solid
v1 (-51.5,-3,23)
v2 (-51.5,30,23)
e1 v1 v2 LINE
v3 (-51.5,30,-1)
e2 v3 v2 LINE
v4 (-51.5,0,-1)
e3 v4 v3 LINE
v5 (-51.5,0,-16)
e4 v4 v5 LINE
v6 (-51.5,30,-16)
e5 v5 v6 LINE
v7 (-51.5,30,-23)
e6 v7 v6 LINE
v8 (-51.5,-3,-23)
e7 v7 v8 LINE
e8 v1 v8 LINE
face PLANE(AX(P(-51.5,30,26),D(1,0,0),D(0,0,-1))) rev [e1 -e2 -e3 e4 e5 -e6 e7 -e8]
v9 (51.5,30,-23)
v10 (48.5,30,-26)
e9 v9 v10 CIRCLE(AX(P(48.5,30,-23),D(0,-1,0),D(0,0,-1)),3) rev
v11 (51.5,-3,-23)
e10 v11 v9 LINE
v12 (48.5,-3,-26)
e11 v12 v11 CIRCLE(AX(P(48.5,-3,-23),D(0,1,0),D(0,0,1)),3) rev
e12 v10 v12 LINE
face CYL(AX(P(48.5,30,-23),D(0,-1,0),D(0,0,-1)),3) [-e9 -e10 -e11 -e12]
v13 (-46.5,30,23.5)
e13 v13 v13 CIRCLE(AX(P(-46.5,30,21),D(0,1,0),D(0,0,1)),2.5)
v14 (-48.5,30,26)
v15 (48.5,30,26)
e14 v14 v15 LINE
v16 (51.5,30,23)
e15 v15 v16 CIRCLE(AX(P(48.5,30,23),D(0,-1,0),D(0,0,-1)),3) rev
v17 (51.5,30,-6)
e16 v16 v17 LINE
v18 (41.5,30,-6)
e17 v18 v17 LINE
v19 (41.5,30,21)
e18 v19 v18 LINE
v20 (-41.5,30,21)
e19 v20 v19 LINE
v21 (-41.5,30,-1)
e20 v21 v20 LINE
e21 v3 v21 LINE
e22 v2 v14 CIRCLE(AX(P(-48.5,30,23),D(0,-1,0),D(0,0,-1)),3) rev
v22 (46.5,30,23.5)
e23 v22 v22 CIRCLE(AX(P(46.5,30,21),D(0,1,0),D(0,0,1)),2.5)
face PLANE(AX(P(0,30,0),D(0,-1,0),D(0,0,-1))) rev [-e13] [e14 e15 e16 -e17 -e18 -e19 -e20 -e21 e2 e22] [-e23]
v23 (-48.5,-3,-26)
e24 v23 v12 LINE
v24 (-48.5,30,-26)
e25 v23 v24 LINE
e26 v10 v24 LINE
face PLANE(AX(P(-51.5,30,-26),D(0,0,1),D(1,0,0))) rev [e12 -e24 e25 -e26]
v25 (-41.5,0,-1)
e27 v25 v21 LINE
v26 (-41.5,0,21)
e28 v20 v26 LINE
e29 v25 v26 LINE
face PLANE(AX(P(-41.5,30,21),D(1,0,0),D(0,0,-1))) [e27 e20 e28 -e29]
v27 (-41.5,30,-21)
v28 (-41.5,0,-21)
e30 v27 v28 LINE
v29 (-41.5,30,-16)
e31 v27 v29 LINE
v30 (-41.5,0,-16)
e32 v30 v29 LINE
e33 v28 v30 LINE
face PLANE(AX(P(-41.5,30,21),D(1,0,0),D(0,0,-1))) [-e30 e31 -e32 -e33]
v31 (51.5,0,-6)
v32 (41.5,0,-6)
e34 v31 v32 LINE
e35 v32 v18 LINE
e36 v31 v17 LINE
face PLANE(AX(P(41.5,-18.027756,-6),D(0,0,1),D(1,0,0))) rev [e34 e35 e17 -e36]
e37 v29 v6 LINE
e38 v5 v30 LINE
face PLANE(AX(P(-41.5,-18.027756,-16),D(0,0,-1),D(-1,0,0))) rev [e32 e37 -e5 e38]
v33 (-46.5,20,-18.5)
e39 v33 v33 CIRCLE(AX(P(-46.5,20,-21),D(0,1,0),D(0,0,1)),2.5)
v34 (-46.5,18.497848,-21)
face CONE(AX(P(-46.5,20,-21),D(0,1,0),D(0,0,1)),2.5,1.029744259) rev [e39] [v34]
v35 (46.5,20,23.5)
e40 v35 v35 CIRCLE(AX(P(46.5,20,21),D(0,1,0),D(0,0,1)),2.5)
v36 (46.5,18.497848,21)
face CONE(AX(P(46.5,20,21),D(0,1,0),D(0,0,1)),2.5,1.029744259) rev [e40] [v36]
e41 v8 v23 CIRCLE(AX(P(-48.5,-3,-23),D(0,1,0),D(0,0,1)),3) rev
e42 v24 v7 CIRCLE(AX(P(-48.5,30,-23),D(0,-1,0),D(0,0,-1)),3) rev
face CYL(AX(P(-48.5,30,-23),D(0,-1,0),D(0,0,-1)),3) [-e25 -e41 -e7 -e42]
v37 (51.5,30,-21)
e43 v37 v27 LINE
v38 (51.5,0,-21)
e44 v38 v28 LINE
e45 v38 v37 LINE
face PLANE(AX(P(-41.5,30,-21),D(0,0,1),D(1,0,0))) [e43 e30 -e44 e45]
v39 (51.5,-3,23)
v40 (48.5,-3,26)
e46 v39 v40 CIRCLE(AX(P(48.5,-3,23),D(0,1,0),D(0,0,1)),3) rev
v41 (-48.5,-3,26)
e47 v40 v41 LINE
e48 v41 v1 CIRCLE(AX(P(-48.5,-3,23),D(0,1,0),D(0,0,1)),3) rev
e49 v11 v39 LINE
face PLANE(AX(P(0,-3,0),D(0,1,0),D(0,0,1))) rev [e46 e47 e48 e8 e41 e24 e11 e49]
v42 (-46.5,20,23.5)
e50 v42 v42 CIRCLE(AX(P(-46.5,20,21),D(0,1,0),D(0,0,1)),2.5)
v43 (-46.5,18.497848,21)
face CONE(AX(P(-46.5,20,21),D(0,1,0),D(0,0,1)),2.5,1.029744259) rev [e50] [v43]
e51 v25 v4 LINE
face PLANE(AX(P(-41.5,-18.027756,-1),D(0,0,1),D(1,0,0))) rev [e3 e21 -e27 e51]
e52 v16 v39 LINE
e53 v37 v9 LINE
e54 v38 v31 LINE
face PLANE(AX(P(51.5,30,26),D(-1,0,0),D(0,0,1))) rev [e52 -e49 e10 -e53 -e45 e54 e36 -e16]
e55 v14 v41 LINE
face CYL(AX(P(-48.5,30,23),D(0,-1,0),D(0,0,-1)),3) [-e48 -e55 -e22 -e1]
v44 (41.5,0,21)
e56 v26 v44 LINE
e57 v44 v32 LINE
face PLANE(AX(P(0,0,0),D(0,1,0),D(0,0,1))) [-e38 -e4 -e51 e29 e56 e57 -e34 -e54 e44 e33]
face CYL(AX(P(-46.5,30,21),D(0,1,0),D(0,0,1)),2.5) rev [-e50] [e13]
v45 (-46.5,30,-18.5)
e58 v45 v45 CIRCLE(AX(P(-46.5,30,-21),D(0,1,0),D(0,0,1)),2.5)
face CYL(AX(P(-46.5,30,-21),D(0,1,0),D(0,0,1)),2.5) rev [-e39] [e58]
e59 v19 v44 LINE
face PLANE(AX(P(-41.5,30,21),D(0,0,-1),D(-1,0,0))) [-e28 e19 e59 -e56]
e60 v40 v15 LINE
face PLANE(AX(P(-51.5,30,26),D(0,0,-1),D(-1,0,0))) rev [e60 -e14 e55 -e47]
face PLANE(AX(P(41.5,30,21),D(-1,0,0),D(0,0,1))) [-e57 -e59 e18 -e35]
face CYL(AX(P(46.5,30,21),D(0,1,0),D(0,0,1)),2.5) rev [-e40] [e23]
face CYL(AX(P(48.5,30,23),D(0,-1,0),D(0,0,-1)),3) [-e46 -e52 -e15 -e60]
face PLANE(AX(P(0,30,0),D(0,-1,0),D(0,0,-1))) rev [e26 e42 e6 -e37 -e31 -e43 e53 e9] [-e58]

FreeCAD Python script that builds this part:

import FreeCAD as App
import Part
import Sketcher

V = App.Vector
Q = App.Units.Quantity


def edges_at(feature, points):
    """Names of the edges that pass closest to the given points."""
    edges = feature.Shape.Edges
    near = lambda p: min(range(len(edges)), key=lambda i: edges[i].distToShape(Part.Vertex(*p))[0])
    return sorted({f"Edge{near(p) + 1}" for p in points})


def add_polygon(sketch, points):
    """Adds a closed chain of lines whose ends are joined by coincident constraints."""
    first, n = sketch.GeometryCount, len(points)
    for a, b in zip(points, points[1:] + points[:1]):
        sketch.addGeometry(Part.LineSegment(App.Vector(*a, 0), App.Vector(*b, 0)), False)
    for i in range(n):
        sketch.addConstraint(Sketcher.Constraint("Coincident", first + i, 2, first + (i + 1) % n, 1))

doc = App.newDocument("Part")
body = doc.addObject("PartDesign::Body", "Body")

# Sketch on XZ plane
sketch1 = body.newObject("Sketcher::SketchObject", "Sketch")
sketch1.AttachmentSupport = (doc.getObject("XZ_Plane"), [""])
sketch1.MapMode = "FlatFace"
add_polygon(sketch1, [(-52, -26), (-52, 26), (52, 26), (52, -26)])  # lines 0-3
add_polygon(sketch1, [(42, 21), (-42, 21), (-42, -21), (42, -21)])  # lines 4-7
sketch1.addConstraint([
    Sketcher.Constraint("Vertical", 0),
    Sketcher.Constraint("Horizontal", 1),
    Sketcher.Constraint("Vertical", 2),
    Sketcher.Constraint("Horizontal", 3),
    Sketcher.Constraint("Horizontal", 4),
    Sketcher.Constraint("Vertical", 5),
    Sketcher.Constraint("Horizontal", 6),
    Sketcher.Constraint("Vertical", 7),
    Sketcher.Constraint("Symmetric", 0, 2, 2, 2, -1, 1),
    Sketcher.Constraint("Symmetric", 4, 2, 6, 2, -1, 1),
    Sketcher.Constraint("DistanceX", 1, 1, 1, 2, Q("103 mm")),
    Sketcher.Constraint("DistanceX", 4, 2, 4, 1, Q("83 mm")),
    Sketcher.Constraint("DistanceY", 0, 1, 0, 2, Q("52 mm")),
    Sketcher.Constraint("DistanceY", 5, 2, 5, 1, Q("42 mm")),
])
pad1 = body.newObject("PartDesign::Pad", "Pad")
pad1.Profile = sketch1
pad1.Length = 30
pad1.Reversed = True

# Sketch on XZ plane
sketch2 = body.newObject("Sketcher::SketchObject", "Sketch001")
sketch2.AttachmentSupport = (doc.getObject("XZ_Plane"), [""])
sketch2.MapMode = "FlatFace"
add_polygon(sketch2, [(-52, 26), (-52, -26), (52, -26), (52, 26)])  # lines 0-3
sketch2.addConstraint([
    Sketcher.Constraint("Vertical", 0),
    Sketcher.Constraint("Horizontal", 1),
    Sketcher.Constraint("Vertical", 2),
    Sketcher.Constraint("Horizontal", 3),
    Sketcher.Constraint("Symmetric", 0, 2, 2, 2, -1, 1),
    Sketcher.Constraint("DistanceX", 1, 1, 1, 2, Q("103 mm")),
    Sketcher.Constraint("DistanceY", 0, 2, 0, 1, Q("52 mm")),
])
pad2 = body.newObject("PartDesign::Pad", "Pad001")
pad2.Profile = sketch2
pad2.Length = 3

# Sketch on XZ plane
sketch3 = body.newObject("Sketcher::SketchObject", "Sketch002")
sketch3.AttachmentSupport = (doc.getObject("XZ_Plane"), [""])
sketch3.MapMode = "FlatFace"
sketch3.AttachmentOffset = App.Placement(V(0, 0, -30), App.Rotation())
add_polygon(sketch3, [(42, -21), (42, -6), (52, -6), (52, -21)])  # lines 0-3
add_polygon(sketch3, [(-52, -16), (-52, -1), (-42, -1), (-42, -16)])  # lines 4-7
sketch3.addConstraint([
    Sketcher.Constraint("Vertical", 0),
    Sketcher.Constraint("Horizontal", 1),
    Sketcher.Constraint("Vertical", 2),
    Sketcher.Constraint("Horizontal", 3),
    Sketcher.Constraint("Vertical", 4),
    Sketcher.Constraint("Horizontal", 5),
    Sketcher.Constraint("Vertical", 6),
    Sketcher.Constraint("Horizontal", 7),
    Sketcher.Constraint("Equal", 3, 5),
    Sketcher.Constraint("Equal", 2, 4),
    Sketcher.Constraint("DistanceX", 1, 1, 1, 2, Q("10 mm")),
    Sketcher.Constraint("DistanceY", 0, 1, 0, 2, Q("15 mm")),
    Sketcher.Constraint("DistanceY", 0, 2, -1, 1, Q("6 mm")),
    Sketcher.Constraint("DistanceY", 4, 2, -1, 1, Q("1 mm")),
    Sketcher.Constraint("DistanceX", 4, 2, 0, 2, Q("93 mm")),
    Sketcher.Constraint("DistanceX", -1, 1, 0, 2, Q("41.5 mm")),
])
pocket1 = body.newObject("PartDesign::Pocket", "Pocket")
pocket1.Profile = sketch3
pocket1.Length = 30
pocket1.Reversed = True

# Sketch on XZ plane
sketch4 = body.newObject("Sketcher::SketchObject", "Sketch003")
sketch4.AttachmentSupport = (doc.getObject("XZ_Plane"), [""])
sketch4.MapMode = "FlatFace"
sketch4.AttachmentOffset = App.Placement(V(0, 0, -30), App.Rotation())
sketch4.addGeometry([
    Part.Circle(V(-46.5, -21, 0), V(0, 0, 1), 2.5),
    Part.Circle(V(46.5, 21, 0), V(0, 0, 1), 2.5),
    Part.Circle(V(-46.5, 21, 0), V(0, 0, 1), 2.5),
], False)
sketch4.addConstraint([
    Sketcher.Constraint("Equal", 0, 1),
    Sketcher.Constraint("Equal", 1, 2),
    Sketcher.Constraint("Symmetric", 0, 3, 1, 3, -1, 1),
    Sketcher.Constraint("Symmetric", 1, 3, 2, 3, -2),
    Sketcher.Constraint("Diameter", 0, Q("5 mm")),
    Sketcher.Constraint("DistanceY", 0, 3, -1, 1, Q("21 mm")),
    Sketcher.Constraint("DistanceX", 0, 3, 1, 3, Q("93 mm")),
])
doc.recompute()
hole = body.newObject("PartDesign::Hole", "Hole")
hole.Profile = sketch4
hole.ThreadType = "None"
hole.Diameter = 5
hole.DepthType = "Dimension"
hole.Depth = 10
hole.DrillPoint = "Angled"
hole.DrillPointAngle = 118
hole.Reversed = True
doc.recompute()

fillet = body.newObject("PartDesign::Fillet", "Fillet")
fillet.Base = (hole, edges_at(hole, [
    (51.5, 13.5, 26),
    (-51.5, 13.5, 26),
    (-51.5, 13.5, -26),
    (51.5, 13.5, -26),
]))
fillet.Radius = 3

doc.recompute()
